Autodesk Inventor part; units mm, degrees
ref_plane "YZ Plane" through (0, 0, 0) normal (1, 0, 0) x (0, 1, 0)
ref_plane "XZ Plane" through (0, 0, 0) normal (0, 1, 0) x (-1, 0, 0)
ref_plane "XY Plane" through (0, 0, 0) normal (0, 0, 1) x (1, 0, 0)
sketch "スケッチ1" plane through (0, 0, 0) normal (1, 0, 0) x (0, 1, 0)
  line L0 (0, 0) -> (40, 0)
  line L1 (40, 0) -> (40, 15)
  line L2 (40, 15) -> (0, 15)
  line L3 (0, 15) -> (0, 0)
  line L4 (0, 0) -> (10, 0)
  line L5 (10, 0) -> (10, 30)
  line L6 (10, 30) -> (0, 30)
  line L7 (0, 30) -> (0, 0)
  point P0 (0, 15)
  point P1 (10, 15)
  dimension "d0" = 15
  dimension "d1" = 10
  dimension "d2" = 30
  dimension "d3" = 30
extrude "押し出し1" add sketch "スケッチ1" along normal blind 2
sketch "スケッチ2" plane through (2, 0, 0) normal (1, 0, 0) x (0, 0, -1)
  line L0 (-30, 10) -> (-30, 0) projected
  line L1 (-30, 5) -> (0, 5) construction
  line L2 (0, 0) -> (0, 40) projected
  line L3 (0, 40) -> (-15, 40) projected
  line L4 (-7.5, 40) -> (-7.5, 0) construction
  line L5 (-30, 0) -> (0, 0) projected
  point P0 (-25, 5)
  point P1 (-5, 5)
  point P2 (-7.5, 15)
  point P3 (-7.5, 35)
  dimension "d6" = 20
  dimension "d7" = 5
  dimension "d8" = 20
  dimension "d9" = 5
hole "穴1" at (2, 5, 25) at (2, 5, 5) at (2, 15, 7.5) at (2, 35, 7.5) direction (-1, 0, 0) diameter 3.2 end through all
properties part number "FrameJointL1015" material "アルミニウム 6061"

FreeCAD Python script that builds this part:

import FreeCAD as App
import Part
import Sketcher
from FreeCAD import Vector
Q = App.Units.Quantity

doc = App.newDocument("Part")
body = doc.addObject("PartDesign::Body", "Body")

sketch1 = doc.addObject("Sketcher::SketchObject", "Sketch")
body.addObject(sketch1)
sketch1.AttachmentSupport = (doc.YZ_Plane, [""])
sketch1.MapMode = "FlatFace"
sketch1.addGeometry([
    Part.LineSegment(Vector(0, 0, 0), Vector(40, 0, 0)),
    Part.LineSegment(Vector(40, 0, 0), Vector(40, 15, 0)),
    Part.LineSegment(Vector(40, 15, 0), Vector(10, 15, 0)),
    Part.LineSegment(Vector(10, 15, 0), Vector(10, 30, 0)),
    Part.LineSegment(Vector(10, 30, 0), Vector(0, 30, 0)),
    Part.LineSegment(Vector(0, 30, 0), Vector(0, 0, 0)),
], False)
sketch1.addConstraint([
    Sketcher.Constraint("Coincident", 0, 2, 1, 1),
    Sketcher.Constraint("Coincident", 1, 2, 2, 1),
    Sketcher.Constraint("Coincident", 2, 2, 3, 1),
    Sketcher.Constraint("Coincident", 3, 2, 4, 1),
    Sketcher.Constraint("Coincident", 4, 2, 5, 1),
    Sketcher.Constraint("Coincident", 5, 2, 0, 1),
    Sketcher.Constraint("Horizontal", 0),
    Sketcher.Constraint("Vertical", 1),
    Sketcher.Constraint("Horizontal", 2),
    Sketcher.Constraint("Vertical", 3),
    Sketcher.Constraint("Horizontal", 4),
    Sketcher.Constraint("Vertical", 5),
    Sketcher.Constraint("Coincident", 5, 2, -1, 1),
    Sketcher.Constraint("Equal", 1, 3),
    Sketcher.Constraint("Equal", 2, 5),
    Sketcher.Constraint("DistanceX", 2, 2, 2, 1, Q("30 mm")),
    Sketcher.Constraint("DistanceX", 4, 2, 4, 1, Q("10 mm")),
])
pad1 = doc.addObject("PartDesign::Pad", "Pad")
body.addObject(pad1)
pad1.Profile = sketch1
pad1.Length = 2

sketch2 = doc.addObject("Sketcher::SketchObject", "Sketch001")
body.addObject(sketch2)
sketch2.AttachmentSupport = (doc.YZ_Plane, [""])
sketch2.MapMode = "FlatFace"
sketch2.AttachmentOffset = App.Placement(Vector(0, 0, 2), App.Rotation())
sketch2.addGeometry([
    Part.Circle(Vector(5, 25, 0), Vector(0, 0, 1), 1.6),
    Part.Circle(Vector(5, 5, 0), Vector(0, 0, 1), 1.6),
    Part.Circle(Vector(15, 7.5, 0), Vector(0, 0, 1), 1.6),
    Part.Circle(Vector(35, 7.5, 0), Vector(0, 0, 1), 1.6),
], False)
sketch2.addConstraint([
    Sketcher.Constraint("Equal", 0, 1),
    Sketcher.Constraint("Equal", 1, 2),
    Sketcher.Constraint("Equal", 2, 3),
    Sketcher.Constraint("Horizontal", 2, 3, 3, 3),
    Sketcher.Constraint("Vertical", 0, 3, 1, 3),
    Sketcher.Constraint("Diameter", 0, Q("3.2 mm")),
    Sketcher.Constraint("DistanceX", -1, 1, 0, 3, Q("5 mm")),
    Sketcher.Constraint("DistanceY", -1, 1, 0, 3, Q("25 mm")),
    Sketcher.Constraint("DistanceY", -1, 1, 1, 3, Q("5 mm")),
    Sketcher.Constraint("DistanceX", -1, 1, 2, 3, Q("15 mm")),
    Sketcher.Constraint("DistanceX", -1, 1, 3, 3, Q("35 mm")),
    Sketcher.Constraint("DistanceY", -1, 1, 2, 3, Q("7.5 mm")),
])
doc.recompute()
hole = doc.addObject("PartDesign::Hole", "Hole")
body.addObject(hole)
hole.Profile = sketch2
hole.ThreadType = "None"
hole.Diameter = 3.2
hole.DepthType = "ThroughAll"

doc.recompute()
